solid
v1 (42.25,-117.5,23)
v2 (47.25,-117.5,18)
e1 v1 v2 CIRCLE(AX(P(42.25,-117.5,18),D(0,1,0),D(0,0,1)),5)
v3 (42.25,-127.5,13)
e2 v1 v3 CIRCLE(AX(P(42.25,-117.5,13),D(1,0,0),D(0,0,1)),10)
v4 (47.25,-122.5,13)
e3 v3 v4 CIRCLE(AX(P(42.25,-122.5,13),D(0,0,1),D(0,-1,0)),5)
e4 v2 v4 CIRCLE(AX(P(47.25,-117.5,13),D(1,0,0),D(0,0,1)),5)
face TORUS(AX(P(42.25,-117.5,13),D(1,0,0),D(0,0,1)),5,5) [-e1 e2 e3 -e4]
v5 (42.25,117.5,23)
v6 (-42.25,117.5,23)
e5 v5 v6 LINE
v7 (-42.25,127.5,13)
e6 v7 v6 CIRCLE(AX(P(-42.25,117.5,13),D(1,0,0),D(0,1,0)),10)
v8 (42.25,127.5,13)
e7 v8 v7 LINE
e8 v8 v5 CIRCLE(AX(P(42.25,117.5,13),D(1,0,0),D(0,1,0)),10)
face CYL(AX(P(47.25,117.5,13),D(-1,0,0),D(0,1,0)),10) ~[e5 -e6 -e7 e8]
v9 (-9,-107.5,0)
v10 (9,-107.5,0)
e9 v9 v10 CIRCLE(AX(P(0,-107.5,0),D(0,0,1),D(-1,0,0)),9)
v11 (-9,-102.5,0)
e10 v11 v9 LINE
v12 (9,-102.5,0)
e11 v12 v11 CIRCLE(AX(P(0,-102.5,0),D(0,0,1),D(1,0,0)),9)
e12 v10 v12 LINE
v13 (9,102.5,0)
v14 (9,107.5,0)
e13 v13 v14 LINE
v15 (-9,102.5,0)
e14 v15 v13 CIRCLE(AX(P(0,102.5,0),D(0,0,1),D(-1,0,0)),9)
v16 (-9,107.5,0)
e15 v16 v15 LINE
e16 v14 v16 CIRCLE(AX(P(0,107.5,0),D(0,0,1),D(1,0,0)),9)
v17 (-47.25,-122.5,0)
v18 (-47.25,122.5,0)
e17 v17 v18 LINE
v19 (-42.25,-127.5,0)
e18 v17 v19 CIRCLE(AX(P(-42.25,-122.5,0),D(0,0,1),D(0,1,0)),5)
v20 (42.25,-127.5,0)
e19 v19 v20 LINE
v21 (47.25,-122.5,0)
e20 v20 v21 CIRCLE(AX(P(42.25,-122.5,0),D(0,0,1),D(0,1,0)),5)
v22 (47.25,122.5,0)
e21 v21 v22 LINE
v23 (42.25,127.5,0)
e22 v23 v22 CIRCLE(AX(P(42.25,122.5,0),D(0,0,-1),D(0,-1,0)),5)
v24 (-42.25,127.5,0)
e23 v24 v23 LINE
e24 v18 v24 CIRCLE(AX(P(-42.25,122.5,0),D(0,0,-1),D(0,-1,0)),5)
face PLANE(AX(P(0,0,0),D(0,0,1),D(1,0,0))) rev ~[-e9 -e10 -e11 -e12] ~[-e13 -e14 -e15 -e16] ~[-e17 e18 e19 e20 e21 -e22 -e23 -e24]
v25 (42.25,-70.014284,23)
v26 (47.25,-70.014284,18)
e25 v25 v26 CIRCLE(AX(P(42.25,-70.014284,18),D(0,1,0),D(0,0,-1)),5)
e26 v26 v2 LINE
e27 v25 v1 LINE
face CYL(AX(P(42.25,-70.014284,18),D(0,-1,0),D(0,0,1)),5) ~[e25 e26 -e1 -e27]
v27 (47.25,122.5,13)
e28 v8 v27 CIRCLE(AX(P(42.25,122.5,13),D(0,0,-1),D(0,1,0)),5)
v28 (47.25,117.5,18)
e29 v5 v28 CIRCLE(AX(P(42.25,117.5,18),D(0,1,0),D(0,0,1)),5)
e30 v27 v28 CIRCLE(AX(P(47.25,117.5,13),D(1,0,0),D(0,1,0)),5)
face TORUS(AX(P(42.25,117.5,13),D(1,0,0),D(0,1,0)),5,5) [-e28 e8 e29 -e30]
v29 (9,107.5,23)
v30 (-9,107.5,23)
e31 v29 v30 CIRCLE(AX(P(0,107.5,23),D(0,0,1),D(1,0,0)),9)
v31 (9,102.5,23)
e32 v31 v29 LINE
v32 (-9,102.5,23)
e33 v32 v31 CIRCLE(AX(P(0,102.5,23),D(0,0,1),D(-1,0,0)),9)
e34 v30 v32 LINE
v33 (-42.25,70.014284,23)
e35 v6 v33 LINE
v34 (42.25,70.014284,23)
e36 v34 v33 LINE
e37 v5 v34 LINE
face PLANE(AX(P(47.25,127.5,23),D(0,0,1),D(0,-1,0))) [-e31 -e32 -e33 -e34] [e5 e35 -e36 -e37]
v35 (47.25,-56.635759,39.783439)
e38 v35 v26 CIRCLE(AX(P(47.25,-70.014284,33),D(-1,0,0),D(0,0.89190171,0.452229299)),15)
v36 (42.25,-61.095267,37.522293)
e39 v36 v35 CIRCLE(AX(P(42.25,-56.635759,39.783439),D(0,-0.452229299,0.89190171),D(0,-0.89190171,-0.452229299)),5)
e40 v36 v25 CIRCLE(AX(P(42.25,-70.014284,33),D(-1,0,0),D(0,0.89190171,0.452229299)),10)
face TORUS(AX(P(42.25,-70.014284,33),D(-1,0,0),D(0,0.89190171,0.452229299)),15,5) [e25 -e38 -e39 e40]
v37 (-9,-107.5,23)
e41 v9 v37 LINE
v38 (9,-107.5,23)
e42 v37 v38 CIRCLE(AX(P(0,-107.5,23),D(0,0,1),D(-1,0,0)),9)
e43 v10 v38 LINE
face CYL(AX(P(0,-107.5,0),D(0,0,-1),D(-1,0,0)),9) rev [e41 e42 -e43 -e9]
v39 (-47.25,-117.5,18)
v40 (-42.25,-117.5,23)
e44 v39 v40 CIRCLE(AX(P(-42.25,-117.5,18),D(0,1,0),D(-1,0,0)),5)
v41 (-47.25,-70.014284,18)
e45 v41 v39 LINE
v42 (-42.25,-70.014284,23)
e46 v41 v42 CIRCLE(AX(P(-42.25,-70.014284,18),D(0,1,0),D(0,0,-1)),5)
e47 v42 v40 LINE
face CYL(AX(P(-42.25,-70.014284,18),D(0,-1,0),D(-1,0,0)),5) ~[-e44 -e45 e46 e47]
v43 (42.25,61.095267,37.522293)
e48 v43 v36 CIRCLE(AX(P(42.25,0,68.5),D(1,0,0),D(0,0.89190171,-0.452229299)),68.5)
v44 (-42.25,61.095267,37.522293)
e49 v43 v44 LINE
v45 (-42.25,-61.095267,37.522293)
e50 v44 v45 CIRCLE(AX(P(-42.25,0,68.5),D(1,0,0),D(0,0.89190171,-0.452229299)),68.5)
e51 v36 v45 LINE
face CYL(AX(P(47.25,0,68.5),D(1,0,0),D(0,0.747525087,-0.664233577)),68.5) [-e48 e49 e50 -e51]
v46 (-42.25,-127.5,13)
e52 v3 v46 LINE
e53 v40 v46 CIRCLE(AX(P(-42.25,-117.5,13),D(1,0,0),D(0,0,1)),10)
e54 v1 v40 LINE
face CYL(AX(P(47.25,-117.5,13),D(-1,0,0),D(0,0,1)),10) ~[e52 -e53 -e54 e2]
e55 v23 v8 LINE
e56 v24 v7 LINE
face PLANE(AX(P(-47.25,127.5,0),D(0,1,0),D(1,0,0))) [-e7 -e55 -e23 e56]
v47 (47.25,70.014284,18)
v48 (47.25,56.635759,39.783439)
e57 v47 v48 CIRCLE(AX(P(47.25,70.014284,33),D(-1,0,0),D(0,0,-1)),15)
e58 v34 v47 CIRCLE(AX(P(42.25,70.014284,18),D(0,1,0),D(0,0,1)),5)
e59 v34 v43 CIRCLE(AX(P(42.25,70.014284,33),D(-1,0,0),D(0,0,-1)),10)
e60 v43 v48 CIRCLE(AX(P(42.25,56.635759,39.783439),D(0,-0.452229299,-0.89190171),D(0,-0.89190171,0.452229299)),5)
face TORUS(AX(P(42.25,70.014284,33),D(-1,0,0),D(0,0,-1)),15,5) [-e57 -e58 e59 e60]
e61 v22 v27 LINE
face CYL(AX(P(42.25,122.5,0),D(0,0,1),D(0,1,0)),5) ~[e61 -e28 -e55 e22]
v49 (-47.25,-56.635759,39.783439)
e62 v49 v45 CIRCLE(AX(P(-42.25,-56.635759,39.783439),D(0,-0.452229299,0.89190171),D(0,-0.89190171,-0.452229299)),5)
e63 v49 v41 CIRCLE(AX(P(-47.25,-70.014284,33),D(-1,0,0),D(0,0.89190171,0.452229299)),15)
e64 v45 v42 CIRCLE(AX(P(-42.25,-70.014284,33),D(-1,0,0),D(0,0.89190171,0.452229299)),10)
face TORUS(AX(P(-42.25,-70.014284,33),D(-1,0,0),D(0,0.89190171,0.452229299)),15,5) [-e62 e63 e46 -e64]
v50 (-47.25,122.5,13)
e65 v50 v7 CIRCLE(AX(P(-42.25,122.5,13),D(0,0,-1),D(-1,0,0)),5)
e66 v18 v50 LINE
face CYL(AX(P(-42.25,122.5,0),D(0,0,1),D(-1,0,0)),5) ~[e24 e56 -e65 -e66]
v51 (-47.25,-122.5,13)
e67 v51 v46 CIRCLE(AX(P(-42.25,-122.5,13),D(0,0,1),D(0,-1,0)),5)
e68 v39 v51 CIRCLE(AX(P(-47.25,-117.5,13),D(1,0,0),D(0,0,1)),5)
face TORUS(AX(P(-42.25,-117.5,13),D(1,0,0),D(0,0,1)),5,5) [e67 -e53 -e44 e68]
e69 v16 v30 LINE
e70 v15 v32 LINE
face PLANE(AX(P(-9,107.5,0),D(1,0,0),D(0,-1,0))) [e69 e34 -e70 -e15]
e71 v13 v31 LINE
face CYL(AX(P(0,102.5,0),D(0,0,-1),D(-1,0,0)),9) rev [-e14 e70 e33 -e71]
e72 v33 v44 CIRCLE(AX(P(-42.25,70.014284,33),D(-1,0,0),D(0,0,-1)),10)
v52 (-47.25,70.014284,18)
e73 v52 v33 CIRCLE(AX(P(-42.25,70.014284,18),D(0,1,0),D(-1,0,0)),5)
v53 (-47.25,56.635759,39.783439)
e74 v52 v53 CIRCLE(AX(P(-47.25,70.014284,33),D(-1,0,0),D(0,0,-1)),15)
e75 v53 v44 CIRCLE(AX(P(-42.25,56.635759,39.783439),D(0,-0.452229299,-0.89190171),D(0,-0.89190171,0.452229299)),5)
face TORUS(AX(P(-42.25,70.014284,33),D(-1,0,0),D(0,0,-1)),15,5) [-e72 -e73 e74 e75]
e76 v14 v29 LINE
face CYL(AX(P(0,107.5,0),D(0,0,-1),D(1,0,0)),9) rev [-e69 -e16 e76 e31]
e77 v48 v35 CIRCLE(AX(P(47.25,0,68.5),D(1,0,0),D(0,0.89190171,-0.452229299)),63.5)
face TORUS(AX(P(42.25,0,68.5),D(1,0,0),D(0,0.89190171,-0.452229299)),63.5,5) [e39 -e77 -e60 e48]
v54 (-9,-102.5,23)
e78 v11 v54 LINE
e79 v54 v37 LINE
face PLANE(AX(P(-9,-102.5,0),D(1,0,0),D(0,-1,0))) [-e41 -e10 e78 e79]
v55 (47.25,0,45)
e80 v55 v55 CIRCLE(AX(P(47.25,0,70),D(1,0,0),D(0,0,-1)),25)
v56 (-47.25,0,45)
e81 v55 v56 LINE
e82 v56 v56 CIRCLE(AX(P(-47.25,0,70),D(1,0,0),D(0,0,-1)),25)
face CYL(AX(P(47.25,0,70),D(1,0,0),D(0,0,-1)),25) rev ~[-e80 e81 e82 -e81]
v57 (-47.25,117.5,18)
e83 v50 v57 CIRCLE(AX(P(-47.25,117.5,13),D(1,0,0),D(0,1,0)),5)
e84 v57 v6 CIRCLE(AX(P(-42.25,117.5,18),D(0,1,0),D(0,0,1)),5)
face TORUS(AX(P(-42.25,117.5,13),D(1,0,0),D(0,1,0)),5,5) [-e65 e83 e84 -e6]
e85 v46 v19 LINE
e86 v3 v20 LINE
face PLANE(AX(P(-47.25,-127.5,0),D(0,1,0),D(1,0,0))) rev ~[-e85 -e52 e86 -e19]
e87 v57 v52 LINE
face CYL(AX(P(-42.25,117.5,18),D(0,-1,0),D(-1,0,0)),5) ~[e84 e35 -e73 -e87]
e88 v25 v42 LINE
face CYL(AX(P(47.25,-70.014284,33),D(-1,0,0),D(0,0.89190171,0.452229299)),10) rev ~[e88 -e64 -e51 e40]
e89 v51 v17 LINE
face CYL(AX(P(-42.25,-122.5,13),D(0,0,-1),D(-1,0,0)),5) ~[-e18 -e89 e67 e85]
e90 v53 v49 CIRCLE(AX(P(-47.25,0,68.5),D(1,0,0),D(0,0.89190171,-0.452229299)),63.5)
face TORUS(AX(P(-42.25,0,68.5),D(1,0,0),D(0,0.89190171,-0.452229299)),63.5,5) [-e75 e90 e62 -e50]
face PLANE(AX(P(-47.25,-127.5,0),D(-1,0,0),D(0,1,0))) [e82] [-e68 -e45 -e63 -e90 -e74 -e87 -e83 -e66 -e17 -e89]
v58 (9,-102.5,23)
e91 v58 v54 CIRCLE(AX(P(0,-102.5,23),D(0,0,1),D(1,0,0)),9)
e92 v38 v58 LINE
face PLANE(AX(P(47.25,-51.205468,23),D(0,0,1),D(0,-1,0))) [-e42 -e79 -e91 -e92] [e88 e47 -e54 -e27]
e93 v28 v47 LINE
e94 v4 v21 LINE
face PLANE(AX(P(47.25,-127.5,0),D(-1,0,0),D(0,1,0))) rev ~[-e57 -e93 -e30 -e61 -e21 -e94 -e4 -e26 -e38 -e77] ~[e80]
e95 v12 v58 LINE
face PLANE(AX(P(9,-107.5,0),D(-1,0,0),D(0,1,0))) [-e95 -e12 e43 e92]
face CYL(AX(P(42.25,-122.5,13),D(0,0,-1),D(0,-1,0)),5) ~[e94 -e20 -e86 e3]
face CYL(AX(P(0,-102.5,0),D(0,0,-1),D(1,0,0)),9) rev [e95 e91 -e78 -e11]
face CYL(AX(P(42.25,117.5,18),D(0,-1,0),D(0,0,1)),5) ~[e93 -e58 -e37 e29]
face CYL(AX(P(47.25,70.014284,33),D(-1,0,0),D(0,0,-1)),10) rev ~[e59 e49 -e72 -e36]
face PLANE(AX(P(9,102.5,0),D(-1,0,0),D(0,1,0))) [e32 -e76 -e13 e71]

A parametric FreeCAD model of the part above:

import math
import FreeCAD as App
import Part
import Sketcher

V = App.Vector
Q = App.Units.Quantity


def edges_at(feature, points):
    """Names of the edges that pass closest to the given points."""
    edges = feature.Shape.Edges
    near = lambda p: min(range(len(edges)), key=lambda i: edges[i].distToShape(Part.Vertex(*p))[0])
    return sorted({f"Edge{near(p) + 1}" for p in points})


def add_polygon(sketch, points):
    """Adds a closed chain of lines whose ends are joined by coincident constraints."""
    first, n = sketch.GeometryCount, len(points)
    for a, b in zip(points, points[1:] + points[:1]):
        sketch.addGeometry(Part.LineSegment(App.Vector(*a, 0), App.Vector(*b, 0)), False)
    for i in range(n):
        sketch.addConstraint(Sketcher.Constraint("Coincident", first + i, 2, first + (i + 1) % n, 1))

doc = App.newDocument("Part")
params = doc.addObject("Spreadsheet::Sheet", "Params")
for row, (alias, value) in enumerate([
    ("sketch1_height", "255 mm"),
    ("sketch1_width", "94.5 mm"),
    ("pad1_length", "137 mm"),
    ("sketch2_radius", "68.5 mm"),
    ("sketch2_width", "255 mm"),
    ("sketch2_height", "23 mm"),
    ("pocket1_length", "137 mm"),
    ("fillet_radius", "10 mm"),
    ("fillet2_radius", "5 mm"),
    ("sketch3_diameter", "50 mm"),
    ("sketch4_radius", "9 mm"),
    ("sketch4_height", "5 mm"),
    ("pocket3_length", "23 mm"),
], start=1):
    params.set(f"A{row}", alias)
    params.set(f"B{row}", "=" + value)
    params.setAlias(f"B{row}", alias)

body = doc.addObject("PartDesign::Body", "Body")

sketch1 = body.newObject("Sketcher::SketchObject", "Sketch")
sketch1.AttachmentSupport = (doc.getObject("XY_Plane"), [""])
sketch1.MapMode = "FlatFace"
add_polygon(sketch1, [(-47, 128), (-47, -128), (47, -128), (47, 128)])
sketch1.addConstraint([
    Sketcher.Constraint("Vertical", 0),
    Sketcher.Constraint("Horizontal", 1),
    Sketcher.Constraint("Vertical", 2),
    Sketcher.Constraint("Horizontal", 3),
    Sketcher.Constraint("Symmetric", 0, 2, 2, 2, -1, 1),
    Sketcher.Constraint("DistanceY", 0, 2, 0, 1, Q("255 mm")),
    Sketcher.Constraint("DistanceX", 1, 1, 1, 2, Q("94.5 mm")),
])
sketch1.setExpression("Constraints[9]", "Params.sketch1_height")
sketch1.setExpression("Constraints[10]", "Params.sketch1_width")
pad1 = body.newObject("PartDesign::Pad", "Pad")
pad1.Profile = sketch1
pad1.setExpression("Length", "Params.pad1_length")

sketch2 = body.newObject("Sketcher::SketchObject", "Sketch001")
sketch2.AttachmentSupport = (doc.getObject("YZ_Plane"), [""])
sketch2.MapMode = "FlatFace"
sketch2.AttachmentOffset = App.Placement(V(0, 0, 47.25), App.Rotation())
add_polygon(sketch2, [(159, 168), (-159, 168), (-159, -31), (159, -31)])
sketch2.addGeometry(Part.LineSegment(V(128, 0, 0), V(-128, 0, 0)), False)
sketch2.addGeometry(Part.LineSegment(V(-128, 0, 0), V(-128, 23, 0)), False)
sketch2.addGeometry(Part.LineSegment(V(-128, 23, 0), V(-51, 23, 0)), False)
sketch2.addGeometry(Part.ArcOfCircle(Part.Circle(V(0, 68, 0), V(0, 0, 1), 68), math.radians(-42), math.radians(222)), False)
sketch2.addGeometry(Part.LineSegment(V(51, 23, 0), V(128, 23, 0)), False)
sketch2.addGeometry(Part.LineSegment(V(128, 23, 0), V(128, 0, 0)), False)
sketch2.addConstraint([
    Sketcher.Constraint("Coincident", 4, 2, 5, 1),
    Sketcher.Constraint("Coincident", 5, 2, 6, 1),
    Sketcher.Constraint("Coincident", 6, 2, 7, 2),
    Sketcher.Constraint("Coincident", 7, 1, 8, 1),
    Sketcher.Constraint("Coincident", 8, 2, 9, 1),
    Sketcher.Constraint("Coincident", 9, 2, 4, 1),
    Sketcher.Constraint("Horizontal", 0),
    Sketcher.Constraint("Vertical", 1),
    Sketcher.Constraint("Horizontal", 2),
    Sketcher.Constraint("Vertical", 3),
    Sketcher.Constraint("Horizontal", 4),
    Sketcher.Constraint("Vertical", 5),
    Sketcher.Constraint("Horizontal", 6),
    Sketcher.Constraint("Horizontal", 8),
    Sketcher.Constraint("Vertical", 9),
    Sketcher.Constraint("Symmetric", 4, 2, 9, 2, -1, 1),
    Sketcher.Constraint("Symmetric", 6, 2, 7, 1, -2),
    Sketcher.Constraint("Radius", 7, Q("68.5 mm")),
    Sketcher.Constraint("DistanceX", 4, 2, 4, 1, Q("255 mm")),
    Sketcher.Constraint("DistanceY", 5, 1, 5, 2, Q("23 mm")),
    Sketcher.Constraint("DistanceY", -1, 1, 7, 3, Q("68.5 mm")),
    Sketcher.Constraint("DistanceX", 0, 2, 0, 1, Q("317.902 mm")),
    Sketcher.Constraint("DistanceY", 1, 2, 1, 1, Q("199.902 mm")),
    Sketcher.Constraint("DistanceX", 0, 2, -1, 1, Q("158.951 mm")),
    Sketcher.Constraint("DistanceY", -1, 1, 0, 2, Q("168.451 mm")),
])
sketch2.setExpression("Constraints[21]", "Params.sketch2_radius")
sketch2.setExpression("Constraints[22]", "Params.sketch2_width")
sketch2.setExpression("Constraints[23]", "Params.sketch2_height")
pocket1 = body.newObject("PartDesign::Pocket", "Pocket")
pocket1.Profile = sketch2
pocket1.setExpression("Length", "Params.pocket1_length")
doc.recompute()

fillet = body.newObject("PartDesign::Fillet", "Fillet")
fillet.Base = (pocket1, edges_at(pocket1, [
    (0, 127.5, 23),
    (0, -51.205, 23),
    (0, 51.205, 23),
    (0, -127.5, 23),
]))
fillet.setExpression("Radius", "Params.fillet_radius")
doc.recompute()

fillet2 = body.newObject("PartDesign::Fillet", "Fillet001")
fillet2.Base = (fillet, edges_at(fillet, [
    (47.25, 127.5, 6.5),
    (-47.25, 127.5, 6.5),
    (47.25, -93.757, 23),
    (47.25, -127.5, 6.5),
    (47.25, 93.757, 23),
    (47.25, 0, 137),
    (47.25, -124.571, 20.071),
    (47.25, 124.571, 20.071),
    (-47.25, 93.757, 23),
    (-47.25, -93.757, 23),
    (-47.25, 0, 137),
    (-47.25, -127.5, 6.5),
    (-47.25, -124.571, 20.071),
    (-47.25, 124.571, 20.071),
    (47.25, 61.493, 27.767),
    (-47.25, 61.493, 27.767),
    (47.25, -61.493, 27.767),
    (-47.25, -61.493, 27.767),
]))
fillet2.setExpression("Radius", "Params.fillet2_radius")

sketch3 = body.newObject("Sketcher::SketchObject", "Sketch002")
sketch3.AttachmentSupport = (doc.getObject("YZ_Plane"), [""])
sketch3.MapMode = "FlatFace"
sketch3.AttachmentOffset = App.Placement(V(0, 0, 47.25), App.Rotation())
sketch3.addGeometry(Part.Circle(V(0, 70, 0), V(0, 0, 1), 25), False)
sketch3.addConstraint([
    Sketcher.Constraint("PointOnObject", 0, 3, -2),
    Sketcher.Constraint("Diameter", 0, Q("50 mm")),
    Sketcher.Constraint("DistanceY", -1, 1, 0, 3, Q("70 mm")),
])
sketch3.setExpression("Constraints[1]", "Params.sketch3_diameter")
pocket2 = body.newObject("PartDesign::Pocket", "Pocket001")
pocket2.Profile = sketch3
pocket2.Type = "ThroughAll"

sketch4 = body.newObject("Sketcher::SketchObject", "Sketch003")
sketch4.AttachmentSupport = (doc.getObject("XY_Plane"), [""])
sketch4.MapMode = "FlatFace"
sketch4.addGeometry([
    Part.LineSegment(V(-9, 102, 0), V(-9, 108, 0)),
    Part.ArcOfCircle(Part.Circle(V(0, 108, 0), V(0, 0, 1), 9), math.radians(0), math.radians(180)),
    Part.LineSegment(V(9, 108, 0), V(9, 102, 0)),
    Part.ArcOfCircle(Part.Circle(V(0, 102, 0), V(0, 0, 1), 9), math.radians(180), math.radians(360)),
    Part.LineSegment(V(9, -102, 0), V(9, -108, 0)),
    Part.ArcOfCircle(Part.Circle(V(0, -108, 0), V(0, 0, 1), 9), math.radians(180), math.radians(360)),
    Part.LineSegment(V(-9, -108, 0), V(-9, -102, 0)),
    Part.ArcOfCircle(Part.Circle(V(0, -102, 0), V(0, 0, 1), 9), math.radians(0), math.radians(180)),
], False)
sketch4.addConstraint([
    Sketcher.Constraint("Tangent", 0, 2, 1, 2),
    Sketcher.Constraint("Tangent", 1, 1, 2, 1),
    Sketcher.Constraint("Tangent", 2, 2, 3, 2),
    Sketcher.Constraint("Tangent", 3, 1, 0, 1),
    Sketcher.Constraint("Tangent", 4, 2, 5, 2),
    Sketcher.Constraint("Tangent", 5, 1, 6, 1),
    Sketcher.Constraint("Tangent", 6, 2, 7, 2),
    Sketcher.Constraint("Tangent", 7, 1, 4, 1),
    Sketcher.Constraint("Vertical", 0),
    Sketcher.Constraint("Vertical", 2),
    Sketcher.Constraint("Vertical", 4),
    Sketcher.Constraint("Vertical", 6),
    Sketcher.Constraint("Equal", 3, 5),
    Sketcher.Constraint("Symmetric", 1, 3, 5, 3, -1, 1),
    Sketcher.Constraint("Symmetric", 3, 3, 7, 3, -1),
    Sketcher.Constraint("Radius", 1, Q("9 mm")),
    Sketcher.Constraint("DistanceY", 0, 1, 0, 2, Q("5 mm")),
    Sketcher.Constraint("DistanceY", 5, 3, 3, 3, Q("210 mm")),
])
sketch4.setExpression("Constraints[15]", "Params.sketch4_radius")
sketch4.setExpression("Constraints[16]", "Params.sketch4_height")
pocket3 = body.newObject("PartDesign::Pocket", "Pocket002")
pocket3.Profile = sketch4
pocket3.setExpression("Length", "Params.pocket3_length")
pocket3.Reversed = True

doc.recompute()
